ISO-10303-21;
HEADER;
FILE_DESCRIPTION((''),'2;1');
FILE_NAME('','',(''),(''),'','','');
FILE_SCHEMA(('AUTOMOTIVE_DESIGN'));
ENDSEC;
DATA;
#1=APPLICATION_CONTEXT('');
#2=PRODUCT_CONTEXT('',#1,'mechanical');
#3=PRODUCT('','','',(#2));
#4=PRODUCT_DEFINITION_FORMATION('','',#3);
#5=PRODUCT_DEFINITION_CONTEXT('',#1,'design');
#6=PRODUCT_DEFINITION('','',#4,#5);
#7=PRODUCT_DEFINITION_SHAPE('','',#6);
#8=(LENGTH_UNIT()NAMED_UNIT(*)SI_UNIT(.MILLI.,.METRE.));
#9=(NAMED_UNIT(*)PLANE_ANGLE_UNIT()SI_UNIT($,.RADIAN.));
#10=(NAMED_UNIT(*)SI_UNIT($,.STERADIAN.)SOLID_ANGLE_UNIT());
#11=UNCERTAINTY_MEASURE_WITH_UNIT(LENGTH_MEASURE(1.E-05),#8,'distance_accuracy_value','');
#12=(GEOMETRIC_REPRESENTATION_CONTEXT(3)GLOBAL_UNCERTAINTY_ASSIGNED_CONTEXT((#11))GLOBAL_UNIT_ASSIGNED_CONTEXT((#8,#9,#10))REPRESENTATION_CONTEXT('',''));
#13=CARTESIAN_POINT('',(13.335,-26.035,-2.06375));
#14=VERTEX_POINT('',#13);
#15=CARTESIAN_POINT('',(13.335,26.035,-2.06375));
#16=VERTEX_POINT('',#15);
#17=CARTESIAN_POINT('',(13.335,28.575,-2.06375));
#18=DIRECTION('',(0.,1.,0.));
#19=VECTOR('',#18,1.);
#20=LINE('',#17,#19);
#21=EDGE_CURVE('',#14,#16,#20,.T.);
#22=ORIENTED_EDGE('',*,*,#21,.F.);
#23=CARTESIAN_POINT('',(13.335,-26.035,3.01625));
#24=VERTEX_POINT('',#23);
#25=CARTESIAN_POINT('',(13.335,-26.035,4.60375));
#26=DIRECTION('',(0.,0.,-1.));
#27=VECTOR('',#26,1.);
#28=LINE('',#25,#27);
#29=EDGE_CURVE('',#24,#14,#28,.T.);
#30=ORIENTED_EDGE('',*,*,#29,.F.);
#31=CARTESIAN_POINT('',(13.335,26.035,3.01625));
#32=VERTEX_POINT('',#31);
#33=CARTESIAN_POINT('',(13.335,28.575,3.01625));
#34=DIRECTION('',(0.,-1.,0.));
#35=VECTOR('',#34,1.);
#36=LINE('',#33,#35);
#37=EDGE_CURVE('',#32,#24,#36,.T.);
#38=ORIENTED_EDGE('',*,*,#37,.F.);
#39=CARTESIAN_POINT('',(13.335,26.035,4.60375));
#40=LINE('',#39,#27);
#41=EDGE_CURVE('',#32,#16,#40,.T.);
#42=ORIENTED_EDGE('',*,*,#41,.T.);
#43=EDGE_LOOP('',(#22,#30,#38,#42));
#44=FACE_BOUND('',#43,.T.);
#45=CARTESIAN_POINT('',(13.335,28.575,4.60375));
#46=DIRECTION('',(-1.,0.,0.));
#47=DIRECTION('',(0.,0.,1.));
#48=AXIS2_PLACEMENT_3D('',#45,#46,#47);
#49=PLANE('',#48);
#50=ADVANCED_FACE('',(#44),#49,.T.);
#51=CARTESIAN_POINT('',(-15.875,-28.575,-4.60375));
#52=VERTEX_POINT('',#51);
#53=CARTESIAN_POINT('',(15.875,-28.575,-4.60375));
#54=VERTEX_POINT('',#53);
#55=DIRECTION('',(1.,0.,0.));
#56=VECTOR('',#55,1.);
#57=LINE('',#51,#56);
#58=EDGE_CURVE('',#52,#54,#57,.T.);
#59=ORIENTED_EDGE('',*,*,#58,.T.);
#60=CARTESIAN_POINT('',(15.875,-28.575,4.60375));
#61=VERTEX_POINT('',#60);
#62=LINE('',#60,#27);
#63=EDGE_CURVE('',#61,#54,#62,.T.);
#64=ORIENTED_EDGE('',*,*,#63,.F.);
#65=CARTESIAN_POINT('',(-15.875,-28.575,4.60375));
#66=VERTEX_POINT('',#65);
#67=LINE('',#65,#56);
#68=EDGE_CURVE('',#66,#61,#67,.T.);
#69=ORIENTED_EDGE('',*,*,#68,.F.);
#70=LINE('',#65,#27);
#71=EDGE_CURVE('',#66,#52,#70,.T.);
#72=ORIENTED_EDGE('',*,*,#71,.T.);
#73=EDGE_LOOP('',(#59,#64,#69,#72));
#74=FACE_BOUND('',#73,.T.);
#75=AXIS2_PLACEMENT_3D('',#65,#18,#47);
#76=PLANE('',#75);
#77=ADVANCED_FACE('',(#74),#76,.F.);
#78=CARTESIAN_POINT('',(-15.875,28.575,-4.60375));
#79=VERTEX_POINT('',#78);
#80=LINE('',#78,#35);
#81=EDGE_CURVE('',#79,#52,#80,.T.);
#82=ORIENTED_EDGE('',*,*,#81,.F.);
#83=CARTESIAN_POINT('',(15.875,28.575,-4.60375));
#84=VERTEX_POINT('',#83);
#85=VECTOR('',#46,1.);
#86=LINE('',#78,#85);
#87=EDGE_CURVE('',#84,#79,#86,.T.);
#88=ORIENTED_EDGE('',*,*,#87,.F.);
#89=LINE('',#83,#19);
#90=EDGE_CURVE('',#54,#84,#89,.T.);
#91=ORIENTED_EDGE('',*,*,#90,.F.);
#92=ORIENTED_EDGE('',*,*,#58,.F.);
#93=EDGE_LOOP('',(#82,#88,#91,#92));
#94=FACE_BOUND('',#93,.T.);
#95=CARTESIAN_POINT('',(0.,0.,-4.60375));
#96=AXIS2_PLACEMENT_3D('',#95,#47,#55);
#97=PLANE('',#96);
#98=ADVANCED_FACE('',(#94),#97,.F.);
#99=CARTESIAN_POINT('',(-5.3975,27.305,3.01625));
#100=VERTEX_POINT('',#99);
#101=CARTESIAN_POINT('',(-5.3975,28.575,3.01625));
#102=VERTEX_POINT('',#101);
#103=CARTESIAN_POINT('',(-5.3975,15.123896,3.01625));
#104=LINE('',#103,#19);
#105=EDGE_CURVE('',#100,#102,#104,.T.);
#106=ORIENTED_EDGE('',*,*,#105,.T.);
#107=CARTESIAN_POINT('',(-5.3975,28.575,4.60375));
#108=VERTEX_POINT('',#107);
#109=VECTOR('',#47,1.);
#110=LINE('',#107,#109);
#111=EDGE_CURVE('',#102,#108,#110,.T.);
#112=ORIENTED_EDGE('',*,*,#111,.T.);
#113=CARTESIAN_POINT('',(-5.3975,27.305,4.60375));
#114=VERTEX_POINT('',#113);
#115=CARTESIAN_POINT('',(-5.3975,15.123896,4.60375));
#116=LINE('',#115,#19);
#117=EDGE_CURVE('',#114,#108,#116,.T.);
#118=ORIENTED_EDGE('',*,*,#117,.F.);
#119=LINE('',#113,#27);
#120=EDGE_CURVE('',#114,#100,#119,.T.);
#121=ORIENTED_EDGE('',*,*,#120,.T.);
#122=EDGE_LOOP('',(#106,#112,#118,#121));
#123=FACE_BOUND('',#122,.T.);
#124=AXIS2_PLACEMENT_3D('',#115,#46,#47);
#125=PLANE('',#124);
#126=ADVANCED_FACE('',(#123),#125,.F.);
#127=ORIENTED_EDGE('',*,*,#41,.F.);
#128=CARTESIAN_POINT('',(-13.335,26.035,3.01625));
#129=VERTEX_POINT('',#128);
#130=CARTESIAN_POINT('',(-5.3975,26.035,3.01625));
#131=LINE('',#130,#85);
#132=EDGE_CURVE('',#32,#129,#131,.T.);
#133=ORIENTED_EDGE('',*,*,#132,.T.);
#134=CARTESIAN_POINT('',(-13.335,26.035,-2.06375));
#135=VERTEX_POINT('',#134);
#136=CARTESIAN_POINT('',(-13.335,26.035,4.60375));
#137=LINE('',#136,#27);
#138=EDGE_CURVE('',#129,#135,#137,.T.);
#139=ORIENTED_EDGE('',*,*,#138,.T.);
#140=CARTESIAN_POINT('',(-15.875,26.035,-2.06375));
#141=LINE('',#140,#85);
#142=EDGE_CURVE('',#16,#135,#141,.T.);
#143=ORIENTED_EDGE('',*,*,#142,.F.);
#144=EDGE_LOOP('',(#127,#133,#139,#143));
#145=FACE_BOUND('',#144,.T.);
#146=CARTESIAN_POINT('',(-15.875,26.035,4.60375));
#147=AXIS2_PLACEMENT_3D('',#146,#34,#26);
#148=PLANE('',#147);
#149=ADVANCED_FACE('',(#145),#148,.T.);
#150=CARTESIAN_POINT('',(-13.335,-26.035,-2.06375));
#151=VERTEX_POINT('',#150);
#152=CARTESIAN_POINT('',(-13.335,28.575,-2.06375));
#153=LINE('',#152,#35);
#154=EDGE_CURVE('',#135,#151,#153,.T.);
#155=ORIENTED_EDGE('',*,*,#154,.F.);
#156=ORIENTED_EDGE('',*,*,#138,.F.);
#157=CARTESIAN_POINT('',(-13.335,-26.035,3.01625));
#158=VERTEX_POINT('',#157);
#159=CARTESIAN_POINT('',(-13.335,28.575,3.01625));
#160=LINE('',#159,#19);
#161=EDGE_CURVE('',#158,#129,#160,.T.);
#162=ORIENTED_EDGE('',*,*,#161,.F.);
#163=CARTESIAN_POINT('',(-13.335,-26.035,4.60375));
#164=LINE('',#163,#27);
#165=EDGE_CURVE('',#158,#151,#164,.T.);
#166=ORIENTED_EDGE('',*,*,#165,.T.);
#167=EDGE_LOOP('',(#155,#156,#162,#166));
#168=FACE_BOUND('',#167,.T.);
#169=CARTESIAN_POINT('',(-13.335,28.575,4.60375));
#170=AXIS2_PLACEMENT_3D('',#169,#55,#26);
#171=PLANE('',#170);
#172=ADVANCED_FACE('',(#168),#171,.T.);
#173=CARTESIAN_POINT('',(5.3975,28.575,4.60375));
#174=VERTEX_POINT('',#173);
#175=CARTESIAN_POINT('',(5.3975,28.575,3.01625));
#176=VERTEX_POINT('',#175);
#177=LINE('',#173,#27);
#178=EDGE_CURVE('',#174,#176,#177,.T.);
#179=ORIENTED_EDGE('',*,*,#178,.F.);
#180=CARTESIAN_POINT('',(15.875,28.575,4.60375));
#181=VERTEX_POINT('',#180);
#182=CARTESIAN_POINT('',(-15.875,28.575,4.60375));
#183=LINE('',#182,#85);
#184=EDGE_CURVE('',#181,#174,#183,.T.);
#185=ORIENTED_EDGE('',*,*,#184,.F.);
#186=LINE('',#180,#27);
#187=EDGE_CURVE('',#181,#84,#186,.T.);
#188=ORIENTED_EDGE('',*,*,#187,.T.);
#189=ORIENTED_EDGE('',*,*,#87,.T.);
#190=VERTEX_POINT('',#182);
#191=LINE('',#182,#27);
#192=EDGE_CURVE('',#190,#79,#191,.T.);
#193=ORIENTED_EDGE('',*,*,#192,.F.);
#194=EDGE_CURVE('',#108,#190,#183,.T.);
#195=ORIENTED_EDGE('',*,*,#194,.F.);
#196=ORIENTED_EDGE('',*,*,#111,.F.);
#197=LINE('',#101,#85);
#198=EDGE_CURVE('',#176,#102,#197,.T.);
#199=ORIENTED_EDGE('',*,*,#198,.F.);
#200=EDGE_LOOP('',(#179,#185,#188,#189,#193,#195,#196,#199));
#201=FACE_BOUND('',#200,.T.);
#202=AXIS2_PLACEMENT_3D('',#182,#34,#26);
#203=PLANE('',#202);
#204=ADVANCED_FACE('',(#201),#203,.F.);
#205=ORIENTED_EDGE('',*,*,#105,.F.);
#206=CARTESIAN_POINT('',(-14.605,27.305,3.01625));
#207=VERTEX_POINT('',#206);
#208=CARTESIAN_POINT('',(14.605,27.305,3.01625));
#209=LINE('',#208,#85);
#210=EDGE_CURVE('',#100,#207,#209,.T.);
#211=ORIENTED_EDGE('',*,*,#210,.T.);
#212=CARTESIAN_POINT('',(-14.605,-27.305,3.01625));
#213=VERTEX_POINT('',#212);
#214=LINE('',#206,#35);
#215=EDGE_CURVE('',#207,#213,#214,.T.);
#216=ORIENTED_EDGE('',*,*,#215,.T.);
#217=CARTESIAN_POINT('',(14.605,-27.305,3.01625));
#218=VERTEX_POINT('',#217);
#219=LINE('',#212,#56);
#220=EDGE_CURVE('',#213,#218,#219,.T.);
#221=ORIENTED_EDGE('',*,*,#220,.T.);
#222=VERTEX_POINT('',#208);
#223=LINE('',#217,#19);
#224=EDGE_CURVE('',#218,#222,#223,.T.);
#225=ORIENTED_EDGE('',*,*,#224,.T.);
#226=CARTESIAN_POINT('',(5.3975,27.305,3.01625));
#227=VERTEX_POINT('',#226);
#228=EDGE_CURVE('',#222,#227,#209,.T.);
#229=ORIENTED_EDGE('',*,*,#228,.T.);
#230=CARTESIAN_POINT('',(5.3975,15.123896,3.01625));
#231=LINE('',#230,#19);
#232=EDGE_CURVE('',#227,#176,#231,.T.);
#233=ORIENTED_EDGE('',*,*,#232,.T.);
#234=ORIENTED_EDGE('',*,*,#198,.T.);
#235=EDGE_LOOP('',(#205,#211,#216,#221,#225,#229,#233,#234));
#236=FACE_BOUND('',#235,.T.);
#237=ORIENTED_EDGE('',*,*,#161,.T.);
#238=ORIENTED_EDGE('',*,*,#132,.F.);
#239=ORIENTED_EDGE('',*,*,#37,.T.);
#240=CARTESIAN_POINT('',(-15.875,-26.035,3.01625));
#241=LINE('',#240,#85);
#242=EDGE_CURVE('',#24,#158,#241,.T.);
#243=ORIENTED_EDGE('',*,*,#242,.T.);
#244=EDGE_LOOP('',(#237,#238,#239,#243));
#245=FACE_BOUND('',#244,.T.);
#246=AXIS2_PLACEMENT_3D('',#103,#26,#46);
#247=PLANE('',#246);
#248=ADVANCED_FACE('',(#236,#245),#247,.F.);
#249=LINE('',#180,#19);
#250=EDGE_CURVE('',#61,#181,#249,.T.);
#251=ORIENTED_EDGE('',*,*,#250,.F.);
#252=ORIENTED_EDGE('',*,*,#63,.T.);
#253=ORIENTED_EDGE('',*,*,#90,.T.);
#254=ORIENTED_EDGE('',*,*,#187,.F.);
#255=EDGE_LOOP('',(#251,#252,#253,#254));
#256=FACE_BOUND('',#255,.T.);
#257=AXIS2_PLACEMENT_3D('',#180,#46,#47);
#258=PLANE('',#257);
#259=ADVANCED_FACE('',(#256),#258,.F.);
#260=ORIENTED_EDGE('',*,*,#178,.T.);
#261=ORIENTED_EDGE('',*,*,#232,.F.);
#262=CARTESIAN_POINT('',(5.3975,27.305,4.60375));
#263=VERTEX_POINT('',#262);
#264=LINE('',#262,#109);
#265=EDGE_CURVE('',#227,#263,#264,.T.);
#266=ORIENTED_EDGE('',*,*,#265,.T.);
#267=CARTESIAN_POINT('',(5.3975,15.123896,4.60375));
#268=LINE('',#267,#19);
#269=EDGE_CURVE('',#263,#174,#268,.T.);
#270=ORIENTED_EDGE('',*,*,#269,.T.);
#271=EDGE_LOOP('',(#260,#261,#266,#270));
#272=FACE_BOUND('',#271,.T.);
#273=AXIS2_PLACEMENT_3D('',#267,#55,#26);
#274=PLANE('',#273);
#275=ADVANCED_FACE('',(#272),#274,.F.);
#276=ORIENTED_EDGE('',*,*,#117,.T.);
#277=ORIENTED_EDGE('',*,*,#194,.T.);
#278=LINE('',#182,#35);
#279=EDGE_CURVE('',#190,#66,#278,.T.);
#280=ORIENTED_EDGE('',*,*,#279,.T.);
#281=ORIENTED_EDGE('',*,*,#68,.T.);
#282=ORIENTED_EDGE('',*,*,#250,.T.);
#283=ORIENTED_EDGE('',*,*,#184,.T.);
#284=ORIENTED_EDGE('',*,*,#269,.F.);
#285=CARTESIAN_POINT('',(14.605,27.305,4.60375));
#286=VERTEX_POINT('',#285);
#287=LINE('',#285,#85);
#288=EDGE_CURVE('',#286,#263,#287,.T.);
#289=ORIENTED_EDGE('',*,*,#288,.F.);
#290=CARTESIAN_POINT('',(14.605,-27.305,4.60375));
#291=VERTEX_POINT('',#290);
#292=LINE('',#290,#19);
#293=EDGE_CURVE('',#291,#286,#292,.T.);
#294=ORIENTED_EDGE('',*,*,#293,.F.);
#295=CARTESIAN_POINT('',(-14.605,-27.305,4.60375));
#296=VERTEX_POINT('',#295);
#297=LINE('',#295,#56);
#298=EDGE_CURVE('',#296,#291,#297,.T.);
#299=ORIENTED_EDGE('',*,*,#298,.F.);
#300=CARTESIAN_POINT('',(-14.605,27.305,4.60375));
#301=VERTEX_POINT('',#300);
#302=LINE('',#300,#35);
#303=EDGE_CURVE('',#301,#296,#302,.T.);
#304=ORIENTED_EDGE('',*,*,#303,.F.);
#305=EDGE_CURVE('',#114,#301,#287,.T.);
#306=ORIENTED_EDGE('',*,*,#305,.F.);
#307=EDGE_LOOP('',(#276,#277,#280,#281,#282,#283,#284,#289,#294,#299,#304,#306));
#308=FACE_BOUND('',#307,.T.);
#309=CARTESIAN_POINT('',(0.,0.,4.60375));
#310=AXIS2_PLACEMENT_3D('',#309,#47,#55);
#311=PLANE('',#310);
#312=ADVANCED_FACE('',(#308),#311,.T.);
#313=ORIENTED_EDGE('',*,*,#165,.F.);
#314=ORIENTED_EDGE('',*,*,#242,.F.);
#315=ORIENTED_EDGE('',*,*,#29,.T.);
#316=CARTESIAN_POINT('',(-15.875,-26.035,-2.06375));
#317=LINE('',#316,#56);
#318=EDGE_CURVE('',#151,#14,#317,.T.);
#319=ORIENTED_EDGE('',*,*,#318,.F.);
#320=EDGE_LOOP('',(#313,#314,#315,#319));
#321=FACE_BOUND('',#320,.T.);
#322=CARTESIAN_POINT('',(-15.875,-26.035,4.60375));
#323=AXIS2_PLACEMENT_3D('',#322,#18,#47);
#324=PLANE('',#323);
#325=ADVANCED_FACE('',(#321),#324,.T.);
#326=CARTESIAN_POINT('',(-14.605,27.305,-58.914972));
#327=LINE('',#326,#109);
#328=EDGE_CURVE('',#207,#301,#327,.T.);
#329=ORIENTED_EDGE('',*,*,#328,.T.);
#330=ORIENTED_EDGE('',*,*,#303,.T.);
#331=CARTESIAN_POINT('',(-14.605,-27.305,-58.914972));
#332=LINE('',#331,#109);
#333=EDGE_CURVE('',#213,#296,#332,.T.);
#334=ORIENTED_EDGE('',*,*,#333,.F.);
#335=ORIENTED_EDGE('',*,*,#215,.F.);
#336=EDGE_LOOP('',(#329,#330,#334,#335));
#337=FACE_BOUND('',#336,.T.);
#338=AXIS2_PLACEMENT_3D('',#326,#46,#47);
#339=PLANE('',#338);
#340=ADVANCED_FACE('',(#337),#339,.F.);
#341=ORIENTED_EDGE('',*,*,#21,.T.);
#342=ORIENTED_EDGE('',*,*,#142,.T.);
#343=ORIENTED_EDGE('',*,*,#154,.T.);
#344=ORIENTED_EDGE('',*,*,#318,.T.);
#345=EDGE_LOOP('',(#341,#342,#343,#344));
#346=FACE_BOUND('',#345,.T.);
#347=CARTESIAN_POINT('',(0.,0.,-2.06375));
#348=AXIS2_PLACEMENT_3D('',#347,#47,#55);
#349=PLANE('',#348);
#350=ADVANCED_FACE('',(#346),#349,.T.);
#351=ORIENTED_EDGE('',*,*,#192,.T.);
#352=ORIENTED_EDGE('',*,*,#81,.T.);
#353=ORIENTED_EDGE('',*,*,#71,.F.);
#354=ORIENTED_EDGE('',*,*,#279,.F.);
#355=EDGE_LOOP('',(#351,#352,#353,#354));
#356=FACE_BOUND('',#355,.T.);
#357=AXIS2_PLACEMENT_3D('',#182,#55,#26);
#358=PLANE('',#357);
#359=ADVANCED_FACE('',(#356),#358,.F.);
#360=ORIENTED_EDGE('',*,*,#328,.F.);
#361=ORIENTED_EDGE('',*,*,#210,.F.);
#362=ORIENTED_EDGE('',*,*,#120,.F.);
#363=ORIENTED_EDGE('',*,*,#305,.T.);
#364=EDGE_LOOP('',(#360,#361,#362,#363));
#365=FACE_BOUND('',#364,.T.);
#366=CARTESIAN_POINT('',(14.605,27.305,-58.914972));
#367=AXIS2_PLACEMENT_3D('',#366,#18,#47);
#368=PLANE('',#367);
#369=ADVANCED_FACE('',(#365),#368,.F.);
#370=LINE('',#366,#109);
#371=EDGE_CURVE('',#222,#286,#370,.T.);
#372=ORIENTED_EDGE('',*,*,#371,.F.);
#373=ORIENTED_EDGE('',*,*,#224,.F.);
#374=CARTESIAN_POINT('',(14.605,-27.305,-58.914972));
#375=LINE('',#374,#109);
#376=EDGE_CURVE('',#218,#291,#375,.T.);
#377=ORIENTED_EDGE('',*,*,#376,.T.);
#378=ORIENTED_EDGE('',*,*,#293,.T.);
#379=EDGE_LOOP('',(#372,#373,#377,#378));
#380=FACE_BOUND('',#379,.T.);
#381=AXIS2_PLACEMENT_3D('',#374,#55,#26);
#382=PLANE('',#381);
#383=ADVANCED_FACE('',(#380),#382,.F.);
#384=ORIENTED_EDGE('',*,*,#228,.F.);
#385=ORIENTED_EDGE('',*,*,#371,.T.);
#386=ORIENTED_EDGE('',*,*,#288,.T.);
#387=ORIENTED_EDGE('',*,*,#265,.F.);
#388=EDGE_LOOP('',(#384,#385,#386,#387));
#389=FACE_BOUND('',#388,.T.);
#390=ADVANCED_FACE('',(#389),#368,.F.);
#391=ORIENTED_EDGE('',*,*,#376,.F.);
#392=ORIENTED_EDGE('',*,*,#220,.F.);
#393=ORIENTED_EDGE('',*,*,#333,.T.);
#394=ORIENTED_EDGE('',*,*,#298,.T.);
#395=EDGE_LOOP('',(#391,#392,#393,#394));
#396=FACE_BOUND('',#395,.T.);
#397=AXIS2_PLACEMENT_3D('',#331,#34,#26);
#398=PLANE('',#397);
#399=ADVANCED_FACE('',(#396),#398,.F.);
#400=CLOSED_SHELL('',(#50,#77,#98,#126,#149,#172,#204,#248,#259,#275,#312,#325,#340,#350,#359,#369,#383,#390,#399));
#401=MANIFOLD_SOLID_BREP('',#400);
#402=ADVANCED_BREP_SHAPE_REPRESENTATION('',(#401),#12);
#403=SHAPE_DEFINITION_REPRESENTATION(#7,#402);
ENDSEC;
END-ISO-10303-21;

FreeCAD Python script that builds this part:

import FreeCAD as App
import Part
import Sketcher
from FreeCAD import Vector
Q = App.Units.Quantity


def faces_at(feature, points):
    """Names of the faces that lie closest to the given points."""
    faces = feature.Shape.Faces
    near = lambda p: min(range(len(faces)), key=lambda i: faces[i].distToShape(Part.Vertex(*p))[0])
    return sorted({f"Face{near(p) + 1}" for p in points})


def add_polygon(sketch, points):
    """Adds a closed chain of lines whose ends are joined by coincident constraints."""
    first, n = sketch.GeometryCount, len(points)
    for a, b in zip(points, points[1:] + points[:1]):
        sketch.addGeometry(Part.LineSegment(App.Vector(*a, 0), App.Vector(*b, 0)), False)
    for i in range(n):
        sketch.addConstraint(Sketcher.Constraint("Coincident", first + i, 2, first + (i + 1) % n, 1))

doc = App.newDocument("Part")
body = doc.addObject("PartDesign::Body", "Body")

# Sketch on XY plane
sketch1 = body.newObject("Sketcher::SketchObject", "Sketch")
sketch1.AttachmentSupport = (doc.getObject("XY_Plane"), [""])
sketch1.MapMode = "FlatFace"
add_polygon(sketch1, [(-15.875, 28.575), (-15.875, -28.575), (15.875, -28.575), (15.875, 28.575)])  # lines 0-3
sketch1.addConstraint(Sketcher.Constraint("Vertical", 0))
sketch1.addConstraint(Sketcher.Constraint("Horizontal", 1))
sketch1.addConstraint(Sketcher.Constraint("Vertical", 2))
sketch1.addConstraint(Sketcher.Constraint("Horizontal", 3))
sketch1.addConstraint(Sketcher.Constraint("Symmetric", 0, 2, 2, 2, -1, 1))
sketch1.addConstraint(Sketcher.Constraint("DistanceX", 1, 1, 1, 2, Q("1.25 in")))
sketch1.addConstraint(Sketcher.Constraint("DistanceY", 0, 2, 0, 1, Q("2.25 in")))
pad1 = body.newObject("PartDesign::Pad", "Pad")
pad1.Profile = sketch1
pad1.Length = Q("0.3625 in")
pad1.Midplane = True
doc.recompute()

thickness = body.newObject("PartDesign::Thickness", "Thickness")
thickness.Base = (pad1, faces_at(pad1, [(0, 0, 4.604)]))
thickness.Value = Q("0.1 in")
thickness.Reversed = True
thickness.Join = "Intersection"

# Sketch on XZ plane
sketch2 = body.newObject("Sketcher::SketchObject", "Sketch001")
sketch2.AttachmentSupport = (doc.getObject("XZ_Plane"), [""])
sketch2.MapMode = "FlatFace"
sketch2.AttachmentOffset = App.Placement(Vector(0, 0, -1.125 * 25.4), App.Rotation())
add_polygon(sketch2, [(-5.3975, 3.01625), (-5.3975, 4.60375), (5.3975, 4.60375), (5.3975, 3.01625)])  # lines 0-3
sketch2.addConstraint(Sketcher.Constraint("Vertical", 0))
sketch2.addConstraint(Sketcher.Constraint("Horizontal", 1))
sketch2.addConstraint(Sketcher.Constraint("Vertical", 2))
sketch2.addConstraint(Sketcher.Constraint("Horizontal", 3))
sketch2.addConstraint(Sketcher.Constraint("DistanceX", 1, 1, 1, 2, Q("0.425 in")))
sketch2.addConstraint(Sketcher.Constraint("DistanceY", 0, 1, 0, 2, Q("0.0625 in")))
sketch2.addConstraint(Sketcher.Constraint("DistanceX", 0, 2, -1, 1, Q("0.2125 in")))
sketch2.addConstraint(Sketcher.Constraint("DistanceY", -1, 1, 0, 2, 4.60375))
pocket1 = body.newObject("PartDesign::Pocket", "Pocket")
pocket1.Profile = sketch2
pocket1.Length = Q("0.1 in")
pocket1.Reversed = True

# Sketch on XY plane
sketch3 = body.newObject("Sketcher::SketchObject", "Sketch002")
sketch3.AttachmentSupport = (doc.getObject("XY_Plane"), [""])
sketch3.MapMode = "FlatFace"
sketch3.AttachmentOffset = App.Placement(Vector(0, 0, 4.60375), App.Rotation())
add_polygon(sketch3, [(-14.605, 27.305), (-14.605, -27.305), (14.605, -27.305), (14.605, 27.305)])  # lines 0-3
sketch3.addConstraint(Sketcher.Constraint("Vertical", 0))
sketch3.addConstraint(Sketcher.Constraint("Horizontal", 1))
sketch3.addConstraint(Sketcher.Constraint("Vertical", 2))
sketch3.addConstraint(Sketcher.Constraint("Horizontal", 3))
sketch3.addConstraint(Sketcher.Constraint("Symmetric", 0, 2, 2, 2, -1, 1))
sketch3.addConstraint(Sketcher.Constraint("DistanceX", 1, 1, 1, 2, Q("1.15 in")))
sketch3.addConstraint(Sketcher.Constraint("DistanceY", 0, 2, 0, 1, Q("2.15 in")))
pocket2 = body.newObject("PartDesign::Pocket", "Pocket001")
pocket2.Profile = sketch3
pocket2.Length = Q("0.0625 in")

doc.recompute()
